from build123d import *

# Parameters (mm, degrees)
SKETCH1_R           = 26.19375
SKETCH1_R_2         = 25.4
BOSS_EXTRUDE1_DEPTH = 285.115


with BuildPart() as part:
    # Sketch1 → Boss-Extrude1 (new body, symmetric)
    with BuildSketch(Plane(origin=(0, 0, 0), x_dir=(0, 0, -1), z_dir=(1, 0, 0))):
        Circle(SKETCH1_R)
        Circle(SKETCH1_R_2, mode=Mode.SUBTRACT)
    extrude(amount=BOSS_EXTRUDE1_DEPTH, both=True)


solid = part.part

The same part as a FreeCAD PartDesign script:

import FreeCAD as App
import Part
import Sketcher
Q = App.Units.Quantity

doc = App.newDocument("Part")
body = doc.addObject("PartDesign::Body", "Body")

# Sketch on YZ plane
sketch1 = body.newObject("Sketcher::SketchObject", "Sketch")
sketch1.AttachmentSupport = (doc.getObject("YZ_Plane"), [""])
sketch1.MapMode = "FlatFace"
sketch1.addGeometry(Part.Circle(App.Vector(0, 0, 0), App.Vector(0, 0, 1), 26), False)
sketch1.addGeometry(Part.Circle(App.Vector(0, 0, 0), App.Vector(0, 0, 1), 25), False)
sketch1.addConstraint(Sketcher.Constraint("Coincident", 0, 3, -1, 1))
sketch1.addConstraint(Sketcher.Constraint("Coincident", 1, 3, -1, 1))
sketch1.addConstraint(Sketcher.Constraint("Diameter", 1, Q("2 in")))
sketch1.addConstraint(Sketcher.Constraint("Diameter", 0, Q("2.0625 in")))
pad1 = body.newObject("PartDesign::Pad", "Pad")
pad1.Profile = sketch1
pad1.Length = Q("22.45 in")
pad1.Midplane = True

doc.recompute()
